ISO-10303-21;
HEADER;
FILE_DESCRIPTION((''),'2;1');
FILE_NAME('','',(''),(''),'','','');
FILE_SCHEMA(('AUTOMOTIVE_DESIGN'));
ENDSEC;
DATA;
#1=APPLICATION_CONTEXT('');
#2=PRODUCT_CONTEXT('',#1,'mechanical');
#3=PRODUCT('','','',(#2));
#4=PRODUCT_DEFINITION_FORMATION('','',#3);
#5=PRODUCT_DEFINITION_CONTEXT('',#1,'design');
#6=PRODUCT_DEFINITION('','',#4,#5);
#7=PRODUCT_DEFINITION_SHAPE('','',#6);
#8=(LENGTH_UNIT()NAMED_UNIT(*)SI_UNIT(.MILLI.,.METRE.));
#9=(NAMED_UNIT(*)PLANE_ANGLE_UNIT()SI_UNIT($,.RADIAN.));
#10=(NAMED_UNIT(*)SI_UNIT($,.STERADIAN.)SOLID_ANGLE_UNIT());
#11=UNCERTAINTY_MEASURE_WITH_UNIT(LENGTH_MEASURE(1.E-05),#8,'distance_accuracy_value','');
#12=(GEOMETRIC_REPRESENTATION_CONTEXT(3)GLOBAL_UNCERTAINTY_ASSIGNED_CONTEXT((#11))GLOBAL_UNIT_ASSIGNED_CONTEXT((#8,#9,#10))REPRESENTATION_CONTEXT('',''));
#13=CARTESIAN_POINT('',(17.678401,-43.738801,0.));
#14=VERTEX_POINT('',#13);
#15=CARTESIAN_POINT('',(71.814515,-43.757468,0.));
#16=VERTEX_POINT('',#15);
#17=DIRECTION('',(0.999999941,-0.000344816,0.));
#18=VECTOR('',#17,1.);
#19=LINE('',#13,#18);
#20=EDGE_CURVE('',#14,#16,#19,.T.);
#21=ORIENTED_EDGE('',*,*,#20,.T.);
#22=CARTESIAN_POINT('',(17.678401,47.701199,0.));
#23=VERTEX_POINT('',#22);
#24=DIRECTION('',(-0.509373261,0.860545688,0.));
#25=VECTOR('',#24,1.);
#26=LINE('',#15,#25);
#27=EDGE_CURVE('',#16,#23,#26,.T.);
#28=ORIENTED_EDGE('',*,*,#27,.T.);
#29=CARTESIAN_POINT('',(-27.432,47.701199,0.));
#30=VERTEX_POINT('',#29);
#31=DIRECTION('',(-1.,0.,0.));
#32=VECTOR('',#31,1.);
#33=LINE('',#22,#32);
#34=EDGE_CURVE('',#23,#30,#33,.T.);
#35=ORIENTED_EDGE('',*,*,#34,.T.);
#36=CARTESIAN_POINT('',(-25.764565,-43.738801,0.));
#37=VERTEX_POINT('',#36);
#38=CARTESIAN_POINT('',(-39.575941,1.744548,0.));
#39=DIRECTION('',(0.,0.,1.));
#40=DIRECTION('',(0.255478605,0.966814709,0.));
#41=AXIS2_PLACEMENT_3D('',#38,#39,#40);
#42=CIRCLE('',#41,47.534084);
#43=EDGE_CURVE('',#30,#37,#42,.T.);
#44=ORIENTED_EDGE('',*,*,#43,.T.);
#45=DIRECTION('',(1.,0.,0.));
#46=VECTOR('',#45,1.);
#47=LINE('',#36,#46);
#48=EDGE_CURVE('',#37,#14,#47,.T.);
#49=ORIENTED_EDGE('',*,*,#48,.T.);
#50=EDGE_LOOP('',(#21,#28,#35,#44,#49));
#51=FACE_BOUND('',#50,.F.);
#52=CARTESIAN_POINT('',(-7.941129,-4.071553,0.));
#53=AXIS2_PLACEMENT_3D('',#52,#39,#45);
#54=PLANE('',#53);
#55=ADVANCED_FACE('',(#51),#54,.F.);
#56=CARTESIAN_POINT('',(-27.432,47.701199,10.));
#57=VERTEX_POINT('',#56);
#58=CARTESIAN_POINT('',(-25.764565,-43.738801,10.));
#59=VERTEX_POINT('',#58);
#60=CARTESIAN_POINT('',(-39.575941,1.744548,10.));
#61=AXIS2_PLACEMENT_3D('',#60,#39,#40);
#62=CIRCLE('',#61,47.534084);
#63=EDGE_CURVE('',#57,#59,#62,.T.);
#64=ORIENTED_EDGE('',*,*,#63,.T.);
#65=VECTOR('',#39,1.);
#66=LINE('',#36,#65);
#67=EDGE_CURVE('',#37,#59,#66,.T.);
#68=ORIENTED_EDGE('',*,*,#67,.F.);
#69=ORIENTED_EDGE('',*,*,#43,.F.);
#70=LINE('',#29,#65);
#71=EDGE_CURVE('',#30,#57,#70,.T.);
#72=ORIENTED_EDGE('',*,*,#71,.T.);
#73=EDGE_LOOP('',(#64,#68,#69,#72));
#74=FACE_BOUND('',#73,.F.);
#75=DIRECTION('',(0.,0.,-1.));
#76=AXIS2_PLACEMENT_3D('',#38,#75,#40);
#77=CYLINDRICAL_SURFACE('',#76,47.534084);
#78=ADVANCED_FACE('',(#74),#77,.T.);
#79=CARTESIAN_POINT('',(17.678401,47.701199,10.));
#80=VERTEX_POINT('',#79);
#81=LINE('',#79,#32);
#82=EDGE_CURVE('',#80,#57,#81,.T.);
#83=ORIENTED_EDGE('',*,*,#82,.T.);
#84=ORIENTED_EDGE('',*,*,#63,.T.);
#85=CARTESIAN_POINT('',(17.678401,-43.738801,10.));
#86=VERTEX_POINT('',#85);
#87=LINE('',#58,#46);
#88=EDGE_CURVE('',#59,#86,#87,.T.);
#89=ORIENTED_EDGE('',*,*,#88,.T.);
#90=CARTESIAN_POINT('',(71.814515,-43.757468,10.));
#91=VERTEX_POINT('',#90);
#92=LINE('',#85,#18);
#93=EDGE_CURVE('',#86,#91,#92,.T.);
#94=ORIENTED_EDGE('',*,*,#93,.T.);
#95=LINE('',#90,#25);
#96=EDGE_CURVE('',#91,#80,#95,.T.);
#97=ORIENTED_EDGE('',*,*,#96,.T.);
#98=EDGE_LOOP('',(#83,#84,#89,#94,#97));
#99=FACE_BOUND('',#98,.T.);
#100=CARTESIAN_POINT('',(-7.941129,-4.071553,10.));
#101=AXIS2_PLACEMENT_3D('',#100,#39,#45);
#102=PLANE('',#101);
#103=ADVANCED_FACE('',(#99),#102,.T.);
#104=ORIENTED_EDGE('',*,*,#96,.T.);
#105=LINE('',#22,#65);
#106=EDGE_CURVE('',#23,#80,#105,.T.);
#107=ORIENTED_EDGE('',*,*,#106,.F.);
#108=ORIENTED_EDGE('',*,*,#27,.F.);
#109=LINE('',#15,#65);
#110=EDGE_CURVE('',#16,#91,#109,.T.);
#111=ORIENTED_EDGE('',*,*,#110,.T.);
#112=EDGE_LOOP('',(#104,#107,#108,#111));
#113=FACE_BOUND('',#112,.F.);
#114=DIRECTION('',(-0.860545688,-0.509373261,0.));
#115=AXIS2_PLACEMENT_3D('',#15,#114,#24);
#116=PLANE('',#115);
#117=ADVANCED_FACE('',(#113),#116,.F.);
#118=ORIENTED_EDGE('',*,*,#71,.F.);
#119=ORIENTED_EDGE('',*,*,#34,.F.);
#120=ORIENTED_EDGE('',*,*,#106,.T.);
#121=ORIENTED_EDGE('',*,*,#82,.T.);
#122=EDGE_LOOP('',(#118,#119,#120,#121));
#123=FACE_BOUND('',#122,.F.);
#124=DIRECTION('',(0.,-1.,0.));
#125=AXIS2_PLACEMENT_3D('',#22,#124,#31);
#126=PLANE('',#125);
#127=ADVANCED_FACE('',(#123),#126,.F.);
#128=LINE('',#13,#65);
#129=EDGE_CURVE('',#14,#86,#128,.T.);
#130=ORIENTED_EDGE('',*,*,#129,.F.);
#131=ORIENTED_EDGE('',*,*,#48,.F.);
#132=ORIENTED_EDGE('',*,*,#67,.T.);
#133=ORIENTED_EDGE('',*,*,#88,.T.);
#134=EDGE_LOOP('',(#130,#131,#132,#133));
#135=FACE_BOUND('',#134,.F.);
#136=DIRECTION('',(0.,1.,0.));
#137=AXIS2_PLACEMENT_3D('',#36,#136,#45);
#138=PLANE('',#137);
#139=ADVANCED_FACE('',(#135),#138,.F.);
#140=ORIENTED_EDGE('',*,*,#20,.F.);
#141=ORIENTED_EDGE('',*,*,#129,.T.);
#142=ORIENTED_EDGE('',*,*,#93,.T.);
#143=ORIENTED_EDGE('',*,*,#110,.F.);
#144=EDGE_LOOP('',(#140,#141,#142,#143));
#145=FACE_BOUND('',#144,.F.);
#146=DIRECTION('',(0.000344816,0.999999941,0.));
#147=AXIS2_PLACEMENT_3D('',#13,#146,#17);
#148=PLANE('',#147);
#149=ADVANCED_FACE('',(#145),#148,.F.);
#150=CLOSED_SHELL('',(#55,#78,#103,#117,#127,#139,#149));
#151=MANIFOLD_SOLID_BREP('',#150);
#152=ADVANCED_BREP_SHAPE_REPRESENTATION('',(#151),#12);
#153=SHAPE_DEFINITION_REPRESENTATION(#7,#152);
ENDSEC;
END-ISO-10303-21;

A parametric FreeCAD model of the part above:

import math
import FreeCAD as App
import Part
import Sketcher
Q = App.Units.Quantity

doc = App.newDocument("Part")
body = doc.addObject("PartDesign::Body", "Body")

# Sketch on XY plane
sketch1 = body.newObject("Sketcher::SketchObject", "Sketch")
sketch1.AttachmentSupport = (doc.getObject("XY_Plane"), [""])
sketch1.MapMode = "FlatFace"
sketch1.addGeometry(Part.LineSegment(App.Vector(18, 48, 0), App.Vector(-27, 48, 0)), False)
sketch1.addGeometry(Part.ArcOfCircle(Part.Circle(App.Vector(-40, 2, 0), App.Vector(0, 0, 1), 48), math.radians(75), math.radians(287)), False)
sketch1.addGeometry(Part.LineSegment(App.Vector(-26, -44, 0), App.Vector(18, -44, 0)), False)
sketch1.addGeometry(Part.LineSegment(App.Vector(18, -44, 0), App.Vector(72, -44, 0)), False)
sketch1.addGeometry(Part.LineSegment(App.Vector(72, -44, 0), App.Vector(18, 48, 0)), False)
sketch1.addConstraint(Sketcher.Constraint("Coincident", 0, 2, 1, 1))
sketch1.addConstraint(Sketcher.Constraint("Coincident", 1, 2, 2, 1))
sketch1.addConstraint(Sketcher.Constraint("Coincident", 2, 2, 3, 1))
sketch1.addConstraint(Sketcher.Constraint("Coincident", 3, 2, 4, 1))
sketch1.addConstraint(Sketcher.Constraint("Coincident", 4, 2, 0, 1))
sketch1.addConstraint(Sketcher.Constraint("Horizontal", 0))
sketch1.addConstraint(Sketcher.Constraint("Horizontal", 2))
sketch1.addConstraint(Sketcher.Constraint("Vertical", 2, 2, 4, 2))
sketch1.addConstraint(Sketcher.Constraint("DistanceY", 1, 2, 0, 2, Q("91.44 mm")))
sketch1.addConstraint(Sketcher.Constraint("DistanceX", 0, 2, 0, 1, Q("45.110401 mm")))
sketch1.addConstraint(Sketcher.Constraint("DistanceX", 0, 2, -1, 1, Q("27.432 mm")))
sketch1.addConstraint(Sketcher.Constraint("Radius", 1, Q("47.534084 mm")))
sketch1.addConstraint(Sketcher.Constraint("DistanceY", -1, 1, 0, 2, Q("47.701199 mm")))
sketch1.addConstraint(Sketcher.Constraint("Distance", 4, Q("106.27985 mm")))
sketch1.addConstraint(Sketcher.Constraint("DistanceX", 2, 1, 2, 2, Q("43.442966 mm")))
sketch1.addConstraint(Sketcher.Constraint("DistanceY", 3, 2, -1, 1, Q("43.757468 mm")))
pad1 = body.newObject("PartDesign::Pad", "Pad")
pad1.Profile = sketch1
pad1.Length = 10

doc.recompute()
